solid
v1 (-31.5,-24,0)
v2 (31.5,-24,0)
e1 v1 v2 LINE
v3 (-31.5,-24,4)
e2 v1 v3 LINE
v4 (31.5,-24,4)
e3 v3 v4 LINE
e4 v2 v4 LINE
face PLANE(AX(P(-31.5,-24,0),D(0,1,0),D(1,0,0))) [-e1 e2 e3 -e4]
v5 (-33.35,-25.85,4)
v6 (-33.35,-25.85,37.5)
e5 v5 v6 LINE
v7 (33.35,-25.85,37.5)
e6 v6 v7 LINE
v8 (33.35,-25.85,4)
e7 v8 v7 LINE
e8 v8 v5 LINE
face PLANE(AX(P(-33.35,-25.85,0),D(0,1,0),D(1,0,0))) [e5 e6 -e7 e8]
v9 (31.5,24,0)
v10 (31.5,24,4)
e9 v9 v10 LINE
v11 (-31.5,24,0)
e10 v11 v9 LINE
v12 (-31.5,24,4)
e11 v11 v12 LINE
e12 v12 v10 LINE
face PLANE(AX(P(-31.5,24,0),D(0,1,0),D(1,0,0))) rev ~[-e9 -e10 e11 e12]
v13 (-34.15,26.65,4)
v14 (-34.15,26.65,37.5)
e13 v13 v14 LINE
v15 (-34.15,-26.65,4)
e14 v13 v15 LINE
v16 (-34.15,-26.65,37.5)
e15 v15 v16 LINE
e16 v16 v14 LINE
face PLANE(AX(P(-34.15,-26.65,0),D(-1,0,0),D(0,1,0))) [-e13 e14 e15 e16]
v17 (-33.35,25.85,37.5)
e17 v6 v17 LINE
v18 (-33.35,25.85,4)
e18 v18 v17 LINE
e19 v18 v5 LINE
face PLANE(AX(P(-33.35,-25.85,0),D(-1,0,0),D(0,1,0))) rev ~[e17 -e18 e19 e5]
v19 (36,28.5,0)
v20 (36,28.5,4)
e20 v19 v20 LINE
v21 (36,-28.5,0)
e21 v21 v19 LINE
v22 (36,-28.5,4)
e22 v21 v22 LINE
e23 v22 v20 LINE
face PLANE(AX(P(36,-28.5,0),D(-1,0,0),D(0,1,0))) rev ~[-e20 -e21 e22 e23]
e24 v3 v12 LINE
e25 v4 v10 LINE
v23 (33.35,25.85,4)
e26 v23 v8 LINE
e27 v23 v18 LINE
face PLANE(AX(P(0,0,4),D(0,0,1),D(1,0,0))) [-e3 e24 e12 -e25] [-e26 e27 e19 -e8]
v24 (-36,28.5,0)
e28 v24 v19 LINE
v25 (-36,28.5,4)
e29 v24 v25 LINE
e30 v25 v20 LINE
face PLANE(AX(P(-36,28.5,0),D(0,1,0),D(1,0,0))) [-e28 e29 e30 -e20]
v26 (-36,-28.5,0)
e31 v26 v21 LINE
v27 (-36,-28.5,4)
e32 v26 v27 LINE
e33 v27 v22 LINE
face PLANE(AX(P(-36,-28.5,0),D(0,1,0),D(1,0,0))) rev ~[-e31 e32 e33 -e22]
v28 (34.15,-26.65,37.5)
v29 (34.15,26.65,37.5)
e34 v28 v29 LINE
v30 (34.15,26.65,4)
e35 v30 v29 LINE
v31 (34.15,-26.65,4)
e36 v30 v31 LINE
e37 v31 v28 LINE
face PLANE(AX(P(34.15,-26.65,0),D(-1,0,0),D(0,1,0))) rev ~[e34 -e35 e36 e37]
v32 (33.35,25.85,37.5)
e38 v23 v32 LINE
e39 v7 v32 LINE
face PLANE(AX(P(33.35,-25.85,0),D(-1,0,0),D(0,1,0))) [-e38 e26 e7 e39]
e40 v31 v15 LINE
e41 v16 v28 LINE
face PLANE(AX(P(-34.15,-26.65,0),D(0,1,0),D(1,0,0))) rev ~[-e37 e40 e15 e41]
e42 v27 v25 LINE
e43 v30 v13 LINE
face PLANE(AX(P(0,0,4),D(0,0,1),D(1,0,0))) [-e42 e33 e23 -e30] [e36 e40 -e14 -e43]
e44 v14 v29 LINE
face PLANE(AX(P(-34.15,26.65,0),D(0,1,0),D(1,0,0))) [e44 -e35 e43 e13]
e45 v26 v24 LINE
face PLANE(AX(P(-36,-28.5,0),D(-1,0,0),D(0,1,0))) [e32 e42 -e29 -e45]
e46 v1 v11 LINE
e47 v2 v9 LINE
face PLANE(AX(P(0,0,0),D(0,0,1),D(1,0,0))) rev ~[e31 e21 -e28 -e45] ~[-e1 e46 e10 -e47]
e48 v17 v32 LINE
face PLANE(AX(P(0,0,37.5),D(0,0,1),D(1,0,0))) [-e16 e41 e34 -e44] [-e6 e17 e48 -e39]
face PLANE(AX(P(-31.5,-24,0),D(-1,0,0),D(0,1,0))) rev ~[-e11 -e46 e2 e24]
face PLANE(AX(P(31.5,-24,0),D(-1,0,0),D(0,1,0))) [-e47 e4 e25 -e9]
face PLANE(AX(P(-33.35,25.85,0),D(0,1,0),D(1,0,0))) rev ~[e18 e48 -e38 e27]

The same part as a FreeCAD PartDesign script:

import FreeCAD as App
import Part
import Sketcher
from FreeCAD import Vector
Q = App.Units.Quantity


def add_polygon(sketch, points):
    """Adds a closed chain of lines whose ends are joined by coincident constraints."""
    first, n = sketch.GeometryCount, len(points)
    for a, b in zip(points, points[1:] + points[:1]):
        sketch.addGeometry(Part.LineSegment(App.Vector(*a, 0), App.Vector(*b, 0)), False)
    for i in range(n):
        sketch.addConstraint(Sketcher.Constraint("Coincident", first + i, 2, first + (i + 1) % n, 1))

doc = App.newDocument("Part")
params = doc.addObject("Spreadsheet::Sheet", "Params")
for row, (alias, value) in enumerate([
    ("sketch1_width", "72 mm"),
    ("sketch1_width2", "63 mm"),
    ("sketch1_height", "57 mm"),
    ("sketch1_height2", "48 mm"),
    ("pad1_length", "4 mm"),
    ("sketch2_width", "68.3 mm"),
    ("sketch2_width2", "66.7 mm"),
    ("sketch2_height", "53.3 mm"),
    ("sketch2_height2", "51.7 mm"),
    ("pad2_length", "37.5 mm"),
], start=1):
    params.set(f"A{row}", alias)
    params.set(f"B{row}", "=" + value)
    params.setAlias(f"B{row}", alias)

body = doc.addObject("PartDesign::Body", "Body")

sketch1 = body.newObject("Sketcher::SketchObject", "Sketch")
sketch1.AttachmentSupport = (doc.getObject("XY_Plane"), [""])
sketch1.MapMode = "FlatFace"
add_polygon(sketch1, [(-36, 28), (-36, -28), (36, -28), (36, 28)])
add_polygon(sketch1, [(32, -24), (-32, -24), (-32, 24), (32, 24)])
sketch1.addConstraint(Sketcher.Constraint("Vertical", 0))
sketch1.addConstraint(Sketcher.Constraint("Horizontal", 1))
sketch1.addConstraint(Sketcher.Constraint("Vertical", 2))
sketch1.addConstraint(Sketcher.Constraint("Horizontal", 3))
sketch1.addConstraint(Sketcher.Constraint("Horizontal", 4))
sketch1.addConstraint(Sketcher.Constraint("Vertical", 5))
sketch1.addConstraint(Sketcher.Constraint("Horizontal", 6))
sketch1.addConstraint(Sketcher.Constraint("Vertical", 7))
sketch1.addConstraint(Sketcher.Constraint("Symmetric", 0, 2, 2, 2, -1, 1))
sketch1.addConstraint(Sketcher.Constraint("Symmetric", 4, 2, 6, 2, -1, 1))
sketch1.addConstraint(Sketcher.Constraint("DistanceX", 1, 1, 1, 2, Q("72 mm")))
sketch1.addConstraint(Sketcher.Constraint("DistanceX", 4, 2, 4, 1, Q("63 mm")))
sketch1.addConstraint(Sketcher.Constraint("DistanceY", 0, 2, 0, 1, Q("57 mm")))
sketch1.addConstraint(Sketcher.Constraint("DistanceY", 5, 1, 5, 2, Q("48 mm")))
sketch1.setExpression("Constraints[18]", "Params.sketch1_width")
sketch1.setExpression("Constraints[19]", "Params.sketch1_width2")
sketch1.setExpression("Constraints[20]", "Params.sketch1_height")
sketch1.setExpression("Constraints[21]", "Params.sketch1_height2")
pad1 = body.newObject("PartDesign::Pad", "Pad")
pad1.Profile = sketch1
pad1.setExpression("Length", "Params.pad1_length")

sketch2 = body.newObject("Sketcher::SketchObject", "Sketch001")
sketch2.AttachmentSupport = (doc.getObject("XY_Plane"), [""])
sketch2.MapMode = "FlatFace"
add_polygon(sketch2, [(-34, 27), (-34, -27), (34, -27), (34, 27)])
add_polygon(sketch2, [(33, -26), (-33, -26), (-33, 26), (33, 26)])
sketch2.addConstraint(Sketcher.Constraint("Vertical", 0))
sketch2.addConstraint(Sketcher.Constraint("Horizontal", 1))
sketch2.addConstraint(Sketcher.Constraint("Vertical", 2))
sketch2.addConstraint(Sketcher.Constraint("Horizontal", 3))
sketch2.addConstraint(Sketcher.Constraint("Horizontal", 4))
sketch2.addConstraint(Sketcher.Constraint("Vertical", 5))
sketch2.addConstraint(Sketcher.Constraint("Horizontal", 6))
sketch2.addConstraint(Sketcher.Constraint("Vertical", 7))
sketch2.addConstraint(Sketcher.Constraint("Symmetric", 0, 2, 2, 2, -1, 1))
sketch2.addConstraint(Sketcher.Constraint("Symmetric", 4, 2, 6, 2, -1, 1))
sketch2.addConstraint(Sketcher.Constraint("DistanceX", 1, 1, 1, 2, Q("68.3 mm")))
sketch2.addConstraint(Sketcher.Constraint("DistanceX", 4, 2, 4, 1, Q("66.7 mm")))
sketch2.addConstraint(Sketcher.Constraint("DistanceY", 0, 2, 0, 1, Q("53.3 mm")))
sketch2.addConstraint(Sketcher.Constraint("DistanceY", 5, 1, 5, 2, Q("51.7 mm")))
sketch2.setExpression("Constraints[18]", "Params.sketch2_width")
sketch2.setExpression("Constraints[19]", "Params.sketch2_width2")
sketch2.setExpression("Constraints[20]", "Params.sketch2_height")
sketch2.setExpression("Constraints[21]", "Params.sketch2_height2")
pad2 = body.newObject("PartDesign::Pad", "Pad001")
pad2.Profile = sketch2
pad2.setExpression("Length", "Params.pad2_length")

doc.recompute()
